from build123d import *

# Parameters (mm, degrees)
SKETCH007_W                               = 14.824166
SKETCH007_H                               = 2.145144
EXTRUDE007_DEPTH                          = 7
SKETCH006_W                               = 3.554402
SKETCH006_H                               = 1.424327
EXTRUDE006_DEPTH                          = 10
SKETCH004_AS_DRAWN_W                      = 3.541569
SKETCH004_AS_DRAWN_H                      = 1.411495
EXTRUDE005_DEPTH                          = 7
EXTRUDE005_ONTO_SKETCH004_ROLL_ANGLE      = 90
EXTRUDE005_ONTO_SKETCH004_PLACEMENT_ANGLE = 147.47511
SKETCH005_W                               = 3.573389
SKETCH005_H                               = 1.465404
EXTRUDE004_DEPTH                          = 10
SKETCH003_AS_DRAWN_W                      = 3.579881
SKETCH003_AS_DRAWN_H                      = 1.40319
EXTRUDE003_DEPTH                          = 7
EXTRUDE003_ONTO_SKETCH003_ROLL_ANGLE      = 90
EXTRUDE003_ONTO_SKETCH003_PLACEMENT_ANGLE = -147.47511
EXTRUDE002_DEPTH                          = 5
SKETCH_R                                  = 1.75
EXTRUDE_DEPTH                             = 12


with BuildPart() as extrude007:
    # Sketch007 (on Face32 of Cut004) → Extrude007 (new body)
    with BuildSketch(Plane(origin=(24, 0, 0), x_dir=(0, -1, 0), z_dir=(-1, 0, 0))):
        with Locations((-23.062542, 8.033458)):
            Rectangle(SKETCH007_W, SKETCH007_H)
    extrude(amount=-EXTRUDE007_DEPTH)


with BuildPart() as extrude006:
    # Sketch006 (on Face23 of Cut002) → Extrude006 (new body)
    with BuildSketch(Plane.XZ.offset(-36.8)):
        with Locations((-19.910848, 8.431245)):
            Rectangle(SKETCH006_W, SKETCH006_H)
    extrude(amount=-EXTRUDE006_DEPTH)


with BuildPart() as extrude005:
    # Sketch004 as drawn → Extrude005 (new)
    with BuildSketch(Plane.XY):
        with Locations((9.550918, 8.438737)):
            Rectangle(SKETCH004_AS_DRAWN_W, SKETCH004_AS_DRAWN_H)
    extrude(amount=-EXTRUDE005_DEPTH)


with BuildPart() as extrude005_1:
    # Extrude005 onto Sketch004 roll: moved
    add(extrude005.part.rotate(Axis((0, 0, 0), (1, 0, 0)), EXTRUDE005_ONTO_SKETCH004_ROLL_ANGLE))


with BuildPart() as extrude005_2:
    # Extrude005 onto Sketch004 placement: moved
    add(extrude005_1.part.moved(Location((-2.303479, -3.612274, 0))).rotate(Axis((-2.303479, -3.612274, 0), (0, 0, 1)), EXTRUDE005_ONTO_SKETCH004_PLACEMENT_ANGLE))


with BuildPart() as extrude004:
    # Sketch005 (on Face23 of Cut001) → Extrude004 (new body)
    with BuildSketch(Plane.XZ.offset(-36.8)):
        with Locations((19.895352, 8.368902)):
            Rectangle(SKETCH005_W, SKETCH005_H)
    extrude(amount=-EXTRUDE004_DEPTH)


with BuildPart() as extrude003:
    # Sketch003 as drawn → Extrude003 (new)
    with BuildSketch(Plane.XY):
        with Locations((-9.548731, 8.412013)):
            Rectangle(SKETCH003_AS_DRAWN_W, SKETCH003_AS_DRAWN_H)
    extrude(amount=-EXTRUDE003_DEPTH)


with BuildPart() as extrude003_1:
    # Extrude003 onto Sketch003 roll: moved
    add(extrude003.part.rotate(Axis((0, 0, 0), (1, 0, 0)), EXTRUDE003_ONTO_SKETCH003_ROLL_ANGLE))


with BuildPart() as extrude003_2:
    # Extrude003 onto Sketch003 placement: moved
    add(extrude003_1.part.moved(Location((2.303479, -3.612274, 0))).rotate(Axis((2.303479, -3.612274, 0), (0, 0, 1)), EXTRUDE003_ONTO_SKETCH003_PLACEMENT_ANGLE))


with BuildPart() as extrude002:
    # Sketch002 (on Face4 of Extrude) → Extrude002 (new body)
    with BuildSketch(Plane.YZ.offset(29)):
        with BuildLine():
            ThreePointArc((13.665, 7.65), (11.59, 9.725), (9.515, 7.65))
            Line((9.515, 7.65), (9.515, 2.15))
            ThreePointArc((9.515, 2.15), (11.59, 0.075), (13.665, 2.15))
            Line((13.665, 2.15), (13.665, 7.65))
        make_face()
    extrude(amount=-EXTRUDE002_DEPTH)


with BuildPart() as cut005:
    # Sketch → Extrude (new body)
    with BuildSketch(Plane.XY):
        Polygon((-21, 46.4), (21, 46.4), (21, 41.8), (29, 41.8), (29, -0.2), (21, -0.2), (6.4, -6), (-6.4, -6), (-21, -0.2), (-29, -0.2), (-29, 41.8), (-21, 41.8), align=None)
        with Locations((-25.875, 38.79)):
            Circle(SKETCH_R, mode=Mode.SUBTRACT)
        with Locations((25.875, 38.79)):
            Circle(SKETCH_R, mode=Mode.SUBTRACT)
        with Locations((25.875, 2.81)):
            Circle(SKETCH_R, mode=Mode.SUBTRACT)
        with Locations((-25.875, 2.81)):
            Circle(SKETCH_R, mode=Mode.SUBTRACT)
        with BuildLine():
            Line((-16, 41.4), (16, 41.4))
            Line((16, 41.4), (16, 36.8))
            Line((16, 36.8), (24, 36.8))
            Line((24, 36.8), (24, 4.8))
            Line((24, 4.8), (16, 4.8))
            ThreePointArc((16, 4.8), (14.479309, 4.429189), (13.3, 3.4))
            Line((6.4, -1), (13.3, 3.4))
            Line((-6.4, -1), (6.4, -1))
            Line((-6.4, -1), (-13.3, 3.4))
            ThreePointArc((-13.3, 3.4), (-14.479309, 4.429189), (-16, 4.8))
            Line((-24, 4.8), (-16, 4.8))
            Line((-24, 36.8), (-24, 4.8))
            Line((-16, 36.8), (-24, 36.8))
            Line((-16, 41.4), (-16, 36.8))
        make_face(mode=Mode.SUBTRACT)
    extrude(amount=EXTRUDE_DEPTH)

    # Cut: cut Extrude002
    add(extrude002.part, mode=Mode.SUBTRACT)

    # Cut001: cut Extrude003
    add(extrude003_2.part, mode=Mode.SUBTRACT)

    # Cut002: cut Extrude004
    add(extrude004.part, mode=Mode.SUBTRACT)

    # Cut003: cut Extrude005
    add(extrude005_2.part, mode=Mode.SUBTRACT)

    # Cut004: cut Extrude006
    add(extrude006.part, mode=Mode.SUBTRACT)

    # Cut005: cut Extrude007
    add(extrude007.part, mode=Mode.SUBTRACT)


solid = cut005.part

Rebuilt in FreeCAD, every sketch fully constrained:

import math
import FreeCAD as App
import Part
import Sketcher


def add_polygon(sketch, points):
    """Adds a closed chain of lines whose ends are joined by coincident constraints."""
    first, n = sketch.GeometryCount, len(points)
    for a, b in zip(points, points[1:] + points[:1]):
        sketch.addGeometry(Part.LineSegment(App.Vector(*a, 0), App.Vector(*b, 0)), False)
    for i in range(n):
        sketch.addConstraint(Sketcher.Constraint("Coincident", first + i, 2, first + (i + 1) % n, 1))

doc = App.newDocument("Part")
body = doc.addObject("PartDesign::Body", "Body")

# Sketch on YZ plane
sketch1 = doc.addObject("Sketcher::SketchObject", "Sketch")
body.addObject(sketch1)
sketch1.AttachmentSupport = (doc.YZ_Plane, [""])
sketch1.MapMode = "FlatFace"
sketch1.AttachmentOffset = App.Placement(App.Vector(0, 0, 24), App.Rotation())
add_polygon(sketch1, [(30.5, 9.1), (30.5, 7), (15.7, 7), (15.7, 9.1)])  # lines 0-3
sketch1.addConstraint([
    Sketcher.Constraint("Vertical", 0),
    Sketcher.Constraint("Horizontal", 1),
    Sketcher.Constraint("Vertical", 2),
    Sketcher.Constraint("Horizontal", 3),
    Sketcher.Constraint("DistanceX", 1, 2, 1, 1, 14.824166),
    Sketcher.Constraint("DistanceY", 0, 2, 0, 1, 2.145144),
    Sketcher.Constraint("DistanceX", -1, 1, 1, 2, 15.650459),
    Sketcher.Constraint("DistanceY", -1, 1, 2, 2, 9.10603),
])
pad1 = doc.addObject("PartDesign::Pad", "Pad")
body.addObject(pad1)
pad1.Profile = sketch1
pad1.Length = 7
body2 = doc.addObject("PartDesign::Body", "Body001")

# Sketch on XZ plane
sketch2 = doc.addObject("Sketcher::SketchObject", "Sketch001")
body2.addObject(sketch2)
sketch2.AttachmentSupport = (doc.getObject("XZ_Plane001"), [""])
sketch2.MapMode = "FlatFace"
sketch2.AttachmentOffset = App.Placement(App.Vector(0, 0, -36.8), App.Rotation())
add_polygon(sketch2, [(-21.7, 9.1), (-21.7, 7.7), (-18.1, 7.7), (-18.1, 9.1)])  # lines 0-3
sketch2.addConstraint([
    Sketcher.Constraint("Vertical", 0),
    Sketcher.Constraint("Horizontal", 1),
    Sketcher.Constraint("Vertical", 2),
    Sketcher.Constraint("Horizontal", 3),
    Sketcher.Constraint("DistanceX", 1, 1, 1, 2, 3.554402),
    Sketcher.Constraint("DistanceY", 0, 2, 0, 1, 1.424327),
    Sketcher.Constraint("DistanceX", 0, 2, -1, 1, 21.688049),
    Sketcher.Constraint("DistanceY", -1, 1, 0, 2, 7.719081),
])
pad2 = doc.addObject("PartDesign::Pad", "Pad001")
body2.addObject(pad2)
pad2.Profile = sketch2
pad2.Length = 10
pad2.Reversed = True
body3 = doc.addObject("PartDesign::Body", "Body002")

# Sketch on XY plane
sketch3 = doc.addObject("Sketcher::SketchObject", "Sketch002")
body3.addObject(sketch3)
sketch3.AttachmentSupport = (doc.getObject("XY_Plane002"), [""])
sketch3.MapMode = "FlatFace"
add_polygon(sketch3, [(7.8, 9.1), (7.8, 7.7), (11.3, 7.7), (11.3, 9.1)])  # lines 0-3
sketch3.addConstraint([
    Sketcher.Constraint("Vertical", 0),
    Sketcher.Constraint("Horizontal", 1),
    Sketcher.Constraint("Vertical", 2),
    Sketcher.Constraint("Horizontal", 3),
    Sketcher.Constraint("DistanceX", 1, 1, 1, 2, 3.541569),
    Sketcher.Constraint("DistanceY", 0, 2, 0, 1, 1.411495),
    Sketcher.Constraint("DistanceY", -1, 1, 0, 2, 7.73299),
    Sketcher.Constraint("DistanceX", -1, 1, 0, 2, 7.780133),
])
pad3 = doc.addObject("PartDesign::Pad", "Pad002")
body3.addObject(pad3)
pad3.Profile = sketch3
pad3.Length = 7
pad3.Reversed = True
body4 = doc.addObject("PartDesign::Body", "Body003")
doc.recompute()

body3.Placement = App.Placement(App.Vector(0, 0, 0), App.Rotation(App.Vector(1, 0, 0), 90))
boolean = doc.addObject("PartDesign::Boolean", "Boolean")
body4.addObject(boolean)
boolean.Type = "Fuse"
boolean.addObjects([body3])
body5 = doc.addObject("PartDesign::Body", "Body004")
doc.recompute()

body4.Placement = App.Placement(App.Vector(-2.303479, -3.612274, 0), App.Rotation(App.Vector(0, 0, 1), 147.47511))
boolean2 = doc.addObject("PartDesign::Boolean", "Boolean001")
body5.addObject(boolean2)
boolean2.Type = "Fuse"
boolean2.addObjects([body4])
body6 = doc.addObject("PartDesign::Body", "Body005")

# Sketch on XZ plane
sketch4 = doc.addObject("Sketcher::SketchObject", "Sketch003")
body6.addObject(sketch4)
sketch4.AttachmentSupport = (doc.getObject("XZ_Plane005"), [""])
sketch4.MapMode = "FlatFace"
sketch4.AttachmentOffset = App.Placement(App.Vector(0, 0, -36.8), App.Rotation())
add_polygon(sketch4, [(18.1, 9.1), (18.1, 7.6), (21.7, 7.6), (21.7, 9.1)])  # lines 0-3
sketch4.addConstraint([
    Sketcher.Constraint("Vertical", 0),
    Sketcher.Constraint("Horizontal", 1),
    Sketcher.Constraint("Vertical", 2),
    Sketcher.Constraint("Horizontal", 3),
    Sketcher.Constraint("DistanceX", 1, 1, 1, 2, 3.573389),
    Sketcher.Constraint("DistanceY", -1, 1, 0, 2, 7.6362),
    Sketcher.Constraint("DistanceY", 0, 2, 0, 1, 1.465404),
    Sketcher.Constraint("DistanceX", -1, 1, 0, 2, 18.108657),
])
pad4 = doc.addObject("PartDesign::Pad", "Pad003")
body6.addObject(pad4)
pad4.Profile = sketch4
pad4.Length = 10
pad4.Reversed = True
body7 = doc.addObject("PartDesign::Body", "Body006")

# Sketch on XY plane
sketch5 = doc.addObject("Sketcher::SketchObject", "Sketch004")
body7.addObject(sketch5)
sketch5.AttachmentSupport = (doc.getObject("XY_Plane006"), [""])
sketch5.MapMode = "FlatFace"
add_polygon(sketch5, [(-11.3, 9.1), (-11.3, 7.7), (-7.8, 7.7), (-7.8, 9.1)])  # lines 0-3
sketch5.addConstraint([
    Sketcher.Constraint("Vertical", 0),
    Sketcher.Constraint("Horizontal", 1),
    Sketcher.Constraint("Vertical", 2),
    Sketcher.Constraint("Horizontal", 3),
    Sketcher.Constraint("DistanceX", 1, 1, 1, 2, 3.579881),
    Sketcher.Constraint("DistanceY", 0, 2, 0, 1, 1.40319),
    Sketcher.Constraint("DistanceX", 0, 2, -1, 1, 11.338672),
    Sketcher.Constraint("DistanceY", -1, 1, 0, 2, 7.710418),
])
pad5 = doc.addObject("PartDesign::Pad", "Pad004")
body7.addObject(pad5)
pad5.Profile = sketch5
pad5.Length = 7
pad5.Reversed = True
body8 = doc.addObject("PartDesign::Body", "Body007")
doc.recompute()

body7.Placement = App.Placement(App.Vector(0, 0, 0), App.Rotation(App.Vector(1, 0, 0), 90))
boolean3 = doc.addObject("PartDesign::Boolean", "Boolean002")
body8.addObject(boolean3)
boolean3.Type = "Fuse"
boolean3.addObjects([body7])
body9 = doc.addObject("PartDesign::Body", "Body008")
doc.recompute()

body8.Placement = App.Placement(App.Vector(2.303479, -3.612274, 0), App.Rotation(App.Vector(0, 0, 1), 212.52489))
boolean4 = doc.addObject("PartDesign::Boolean", "Boolean003")
body9.addObject(boolean4)
boolean4.Type = "Fuse"
boolean4.addObjects([body8])
body10 = doc.addObject("PartDesign::Body", "Body009")

# Sketch on YZ plane
sketch6 = doc.addObject("Sketcher::SketchObject", "Sketch005")
body10.addObject(sketch6)
sketch6.AttachmentSupport = (doc.getObject("YZ_Plane009"), [""])
sketch6.MapMode = "FlatFace"
sketch6.AttachmentOffset = App.Placement(App.Vector(0, 0, 29), App.Rotation())
sketch6.addGeometry([
    Part.ArcOfCircle(Part.Circle(App.Vector(11.6, 7.7, 0), App.Vector(0, 0, 1), 2.1), math.radians(0), math.radians(180)),
    Part.LineSegment(App.Vector(9.5, 7.7, 0), App.Vector(9.5, 2.1, 0)),
    Part.ArcOfCircle(Part.Circle(App.Vector(11.6, 2.1, 0), App.Vector(0, 0, 1), 2.1), math.radians(180), math.radians(360)),
    Part.LineSegment(App.Vector(13.7, 2.1, 0), App.Vector(13.7, 7.7, 0)),
], False)
sketch6.addConstraint([
    Sketcher.Constraint("Tangent", 0, 2, 1, 1),
    Sketcher.Constraint("Tangent", 1, 2, 2, 1),
    Sketcher.Constraint("Tangent", 2, 2, 3, 1),
    Sketcher.Constraint("Tangent", 3, 2, 0, 1),
    Sketcher.Constraint("Vertical", 1),
    Sketcher.Constraint("Vertical", 3),
    Sketcher.Constraint("DistanceY", 1, 2, 1, 1, 5.5),
    Sketcher.Constraint("Radius", 0, 2.075),
    Sketcher.Constraint("DistanceX", -1, 1, 0, 3, 11.59),
    Sketcher.Constraint("DistanceY", -1, 1, 0, 3, 7.65),
])
pad6 = doc.addObject("PartDesign::Pad", "Pad005")
body10.addObject(pad6)
pad6.Profile = sketch6
pad6.Length = 5
pad6.Reversed = True
body11 = doc.addObject("PartDesign::Body", "Body010")

# Sketch on XY plane
sketch7 = doc.addObject("Sketcher::SketchObject", "Sketch006")
body11.addObject(sketch7)
sketch7.AttachmentSupport = (doc.getObject("XY_Plane010"), [""])
sketch7.MapMode = "FlatFace"
add_polygon(sketch7, [(21, 46.4), (-21, 46.4), (-21, 41.8), (-29, 41.8), (-29, -0.2), (-21, -0.2), (-6.4, -6), (6.4, -6), (21, -0.2), (29, -0.2), (29, 41.8), (21, 41.8)])  # lines 0-11
sketch7.addGeometry(Part.Circle(App.Vector(25.9, 2.8, 0), App.Vector(0, 0, 1), 1.8), False)  # 12
sketch7.addGeometry(Part.Circle(App.Vector(-25.9, 2.8, 0), App.Vector(0, 0, 1), 1.8), False)  # 13
sketch7.addGeometry(Part.Circle(App.Vector(25.9, 38.8, 0), App.Vector(0, 0, 1), 1.8), False)  # 14
sketch7.addGeometry(Part.LineSegment(App.Vector(-16, 41.4, 0), App.Vector(16, 41.4, 0)), False)  # 15
sketch7.addGeometry(Part.LineSegment(App.Vector(16, 41.4, 0), App.Vector(16, 36.8, 0)), False)  # 16
sketch7.addGeometry(Part.LineSegment(App.Vector(16, 36.8, 0), App.Vector(24, 36.8, 0)), False)  # 17
sketch7.addGeometry(Part.LineSegment(App.Vector(24, 36.8, 0), App.Vector(24, 4.8, 0)), False)  # 18
sketch7.addGeometry(Part.LineSegment(App.Vector(24, 4.8, 0), App.Vector(16, 4.8, 0)), False)  # 19
sketch7.addGeometry(Part.ArcOfCircle(Part.Circle(App.Vector(16, 1.5, 0), App.Vector(0, 0, 1), 3.3), math.radians(90), math.radians(145)), False)  # 20
sketch7.addGeometry(Part.LineSegment(App.Vector(13.3, 3.4, 0), App.Vector(6.4, -1, 0)), False)  # 21
sketch7.addGeometry(Part.LineSegment(App.Vector(6.4, -1, 0), App.Vector(-6.4, -1, 0)), False)  # 22
sketch7.addGeometry(Part.LineSegment(App.Vector(-6.4, -1, 0), App.Vector(-13.3, 3.4, 0)), False)  # 23
sketch7.addGeometry(Part.ArcOfCircle(Part.Circle(App.Vector(-16, 1.5, 0), App.Vector(0, 0, 1), 3.3), math.radians(35), math.radians(90)), False)  # 24
sketch7.addGeometry(Part.LineSegment(App.Vector(-16, 4.8, 0), App.Vector(-24, 4.8, 0)), False)  # 25
sketch7.addGeometry(Part.LineSegment(App.Vector(-24, 4.8, 0), App.Vector(-24, 36.8, 0)), False)  # 26
sketch7.addGeometry(Part.LineSegment(App.Vector(-24, 36.8, 0), App.Vector(-16, 36.8, 0)), False)  # 27
sketch7.addGeometry(Part.LineSegment(App.Vector(-16, 36.8, 0), App.Vector(-16, 41.4, 0)), False)  # 28
sketch7.addGeometry(Part.Circle(App.Vector(-25.9, 38.8, 0), App.Vector(0, 0, 1), 1.8), False)  # 29
sketch7.addConstraint([
    Sketcher.Constraint("Coincident", 15, 2, 16, 1),
    Sketcher.Constraint("Coincident", 16, 2, 17, 1),
    Sketcher.Constraint("Coincident", 17, 2, 18, 1),
    Sketcher.Constraint("Coincident", 18, 2, 19, 1),
    Sketcher.Constraint("Tangent", 19, 2, 20, 1),
    Sketcher.Constraint("Coincident", 20, 2, 21, 1),
    Sketcher.Constraint("Coincident", 21, 2, 22, 1),
    Sketcher.Constraint("Coincident", 22, 2, 23, 1),
    Sketcher.Constraint("Coincident", 23, 2, 24, 1),
    Sketcher.Constraint("Tangent", 24, 2, 25, 1),
    Sketcher.Constraint("Coincident", 25, 2, 26, 1),
    Sketcher.Constraint("Coincident", 26, 2, 27, 1),
    Sketcher.Constraint("Coincident", 27, 2, 28, 1),
    Sketcher.Constraint("Coincident", 28, 2, 15, 1),
    Sketcher.Constraint("Horizontal", 0),
    Sketcher.Constraint("Vertical", 1),
    Sketcher.Constraint("Horizontal", 2),
    Sketcher.Constraint("Vertical", 3),
    Sketcher.Constraint("Horizontal", 4),
    Sketcher.Constraint("Horizontal", 6),
    Sketcher.Constraint("Horizontal", 8),
    Sketcher.Constraint("Vertical", 9),
    Sketcher.Constraint("Horizontal", 10),
    Sketcher.Constraint("Vertical", 11),
    Sketcher.Constraint("Horizontal", 15),
    Sketcher.Constraint("Vertical", 16),
    Sketcher.Constraint("Horizontal", 17),
    Sketcher.Constraint("Vertical", 18),
    Sketcher.Constraint("Horizontal", 19),
    Sketcher.Constraint("Horizontal", 22),
    Sketcher.Constraint("Horizontal", 25),
    Sketcher.Constraint("Vertical", 26),
    Sketcher.Constraint("Horizontal", 27),
    Sketcher.Constraint("Vertical", 28),
    Sketcher.Constraint("Equal", 12, 13),
    Sketcher.Constraint("Equal", 13, 14),
    Sketcher.Constraint("Equal", 20, 24),
    Sketcher.Constraint("Equal", 14, 29),
    Sketcher.Constraint("Symmetric", 12, 3, 13, 3, -2),
    Sketcher.Constraint("Symmetric", 20, 3, 24, 3, -2),
    Sketcher.Constraint("Symmetric", 14, 3, 29, 3, -2),
    Sketcher.Constraint("Symmetric", 4, 2, 7, 2, -2),
    Sketcher.Constraint("Symmetric", 2, 2, 9, 2, -2),
    Sketcher.Constraint("Symmetric", 17, 2, 26, 2, -2),
    Sketcher.Constraint("Horizontal", 20, 2, 23, 2),
    Sketcher.Constraint("Vertical", 12, 3, 14, 3),
    Sketcher.Constraint("Vertical", 1, 2, 4, 2),
    Sketcher.Constraint("Vertical", 7, 2, 10, 2),
    Sketcher.Constraint("Vertical", 20, 3, 15, 2),
    Sketcher.Constraint("Vertical", 6, 2, 21, 2),
    Sketcher.Constraint("Vertical", 5, 2, 22, 2),
    Sketcher.Constraint("Vertical", 24, 2, 27, 2),
    Sketcher.Constraint("Equal", 10, 17),
    Sketcher.Constraint("Equal", 0, 3),
    Sketcher.Constraint("Equal", 11, 16),
    Sketcher.Constraint("Equal", 15, 18),
    Sketcher.Constraint("Equal", 5, 7),
    Sketcher.Constraint("Diameter", 12, 3.5),
    Sketcher.Constraint("DistanceX", 0, 2, 0, 1, 42.0),
    Sketcher.Constraint("DistanceX", 2, 2, 2, 1, 8.0),
    Sketcher.Constraint("DistanceX", 15, 1, 15, 2, 32.0),
    Sketcher.Constraint("DistanceX", 6, 1, 6, 2, 12.8),
    Sketcher.Constraint("DistanceY", 1, 2, 1, 1, 4.6),
    Sketcher.Constraint("DistanceY", 5, 2, -1, 1, 6.0),
    Sketcher.Constraint("DistanceY", 21, 2, -1, 1, 1.0),
    Sketcher.Constraint("DistanceY", 15, 2, 11, 2, 5.0),
    Sketcher.Constraint("DistanceY", -1, 1, 0, 2, 46.4),
    Sketcher.Constraint("DistanceX", -1, 1, 20, 2, 13.3),
    Sketcher.Constraint("DistanceY", -1, 1, 20, 2, 3.4),
    Sketcher.Constraint("DistanceY", -1, 1, 12, 3, 2.81),
    Sketcher.Constraint("DistanceY", -1, 1, 14, 3, 38.79),
    Sketcher.Constraint("DistanceX", 13, 3, 12, 3, 51.75),
])
pad7 = doc.addObject("PartDesign::Pad", "Pad006")
body11.addObject(pad7)
pad7.Profile = sketch7
pad7.Length = 12
doc.recompute()

boolean5 = doc.addObject("PartDesign::Boolean", "Boolean004")
body11.addObject(boolean5)
boolean5.Type = "Cut"
boolean5.addObjects([body10])
doc.recompute()

boolean6 = doc.addObject("PartDesign::Boolean", "Boolean005")
body11.addObject(boolean6)
boolean6.Type = "Cut"
boolean6.addObjects([body9])
doc.recompute()

boolean7 = doc.addObject("PartDesign::Boolean", "Boolean006")
body11.addObject(boolean7)
boolean7.Type = "Cut"
boolean7.addObjects([body6])
doc.recompute()

boolean8 = doc.addObject("PartDesign::Boolean", "Boolean007")
body11.addObject(boolean8)
boolean8.Type = "Cut"
boolean8.addObjects([body5])
doc.recompute()

boolean9 = doc.addObject("PartDesign::Boolean", "Boolean008")
body11.addObject(boolean9)
boolean9.Type = "Cut"
boolean9.addObjects([body2])
doc.recompute()

boolean10 = doc.addObject("PartDesign::Boolean", "Boolean009")
body11.addObject(boolean10)
boolean10.Type = "Cut"
boolean10.addObjects([body])

doc.recompute()
